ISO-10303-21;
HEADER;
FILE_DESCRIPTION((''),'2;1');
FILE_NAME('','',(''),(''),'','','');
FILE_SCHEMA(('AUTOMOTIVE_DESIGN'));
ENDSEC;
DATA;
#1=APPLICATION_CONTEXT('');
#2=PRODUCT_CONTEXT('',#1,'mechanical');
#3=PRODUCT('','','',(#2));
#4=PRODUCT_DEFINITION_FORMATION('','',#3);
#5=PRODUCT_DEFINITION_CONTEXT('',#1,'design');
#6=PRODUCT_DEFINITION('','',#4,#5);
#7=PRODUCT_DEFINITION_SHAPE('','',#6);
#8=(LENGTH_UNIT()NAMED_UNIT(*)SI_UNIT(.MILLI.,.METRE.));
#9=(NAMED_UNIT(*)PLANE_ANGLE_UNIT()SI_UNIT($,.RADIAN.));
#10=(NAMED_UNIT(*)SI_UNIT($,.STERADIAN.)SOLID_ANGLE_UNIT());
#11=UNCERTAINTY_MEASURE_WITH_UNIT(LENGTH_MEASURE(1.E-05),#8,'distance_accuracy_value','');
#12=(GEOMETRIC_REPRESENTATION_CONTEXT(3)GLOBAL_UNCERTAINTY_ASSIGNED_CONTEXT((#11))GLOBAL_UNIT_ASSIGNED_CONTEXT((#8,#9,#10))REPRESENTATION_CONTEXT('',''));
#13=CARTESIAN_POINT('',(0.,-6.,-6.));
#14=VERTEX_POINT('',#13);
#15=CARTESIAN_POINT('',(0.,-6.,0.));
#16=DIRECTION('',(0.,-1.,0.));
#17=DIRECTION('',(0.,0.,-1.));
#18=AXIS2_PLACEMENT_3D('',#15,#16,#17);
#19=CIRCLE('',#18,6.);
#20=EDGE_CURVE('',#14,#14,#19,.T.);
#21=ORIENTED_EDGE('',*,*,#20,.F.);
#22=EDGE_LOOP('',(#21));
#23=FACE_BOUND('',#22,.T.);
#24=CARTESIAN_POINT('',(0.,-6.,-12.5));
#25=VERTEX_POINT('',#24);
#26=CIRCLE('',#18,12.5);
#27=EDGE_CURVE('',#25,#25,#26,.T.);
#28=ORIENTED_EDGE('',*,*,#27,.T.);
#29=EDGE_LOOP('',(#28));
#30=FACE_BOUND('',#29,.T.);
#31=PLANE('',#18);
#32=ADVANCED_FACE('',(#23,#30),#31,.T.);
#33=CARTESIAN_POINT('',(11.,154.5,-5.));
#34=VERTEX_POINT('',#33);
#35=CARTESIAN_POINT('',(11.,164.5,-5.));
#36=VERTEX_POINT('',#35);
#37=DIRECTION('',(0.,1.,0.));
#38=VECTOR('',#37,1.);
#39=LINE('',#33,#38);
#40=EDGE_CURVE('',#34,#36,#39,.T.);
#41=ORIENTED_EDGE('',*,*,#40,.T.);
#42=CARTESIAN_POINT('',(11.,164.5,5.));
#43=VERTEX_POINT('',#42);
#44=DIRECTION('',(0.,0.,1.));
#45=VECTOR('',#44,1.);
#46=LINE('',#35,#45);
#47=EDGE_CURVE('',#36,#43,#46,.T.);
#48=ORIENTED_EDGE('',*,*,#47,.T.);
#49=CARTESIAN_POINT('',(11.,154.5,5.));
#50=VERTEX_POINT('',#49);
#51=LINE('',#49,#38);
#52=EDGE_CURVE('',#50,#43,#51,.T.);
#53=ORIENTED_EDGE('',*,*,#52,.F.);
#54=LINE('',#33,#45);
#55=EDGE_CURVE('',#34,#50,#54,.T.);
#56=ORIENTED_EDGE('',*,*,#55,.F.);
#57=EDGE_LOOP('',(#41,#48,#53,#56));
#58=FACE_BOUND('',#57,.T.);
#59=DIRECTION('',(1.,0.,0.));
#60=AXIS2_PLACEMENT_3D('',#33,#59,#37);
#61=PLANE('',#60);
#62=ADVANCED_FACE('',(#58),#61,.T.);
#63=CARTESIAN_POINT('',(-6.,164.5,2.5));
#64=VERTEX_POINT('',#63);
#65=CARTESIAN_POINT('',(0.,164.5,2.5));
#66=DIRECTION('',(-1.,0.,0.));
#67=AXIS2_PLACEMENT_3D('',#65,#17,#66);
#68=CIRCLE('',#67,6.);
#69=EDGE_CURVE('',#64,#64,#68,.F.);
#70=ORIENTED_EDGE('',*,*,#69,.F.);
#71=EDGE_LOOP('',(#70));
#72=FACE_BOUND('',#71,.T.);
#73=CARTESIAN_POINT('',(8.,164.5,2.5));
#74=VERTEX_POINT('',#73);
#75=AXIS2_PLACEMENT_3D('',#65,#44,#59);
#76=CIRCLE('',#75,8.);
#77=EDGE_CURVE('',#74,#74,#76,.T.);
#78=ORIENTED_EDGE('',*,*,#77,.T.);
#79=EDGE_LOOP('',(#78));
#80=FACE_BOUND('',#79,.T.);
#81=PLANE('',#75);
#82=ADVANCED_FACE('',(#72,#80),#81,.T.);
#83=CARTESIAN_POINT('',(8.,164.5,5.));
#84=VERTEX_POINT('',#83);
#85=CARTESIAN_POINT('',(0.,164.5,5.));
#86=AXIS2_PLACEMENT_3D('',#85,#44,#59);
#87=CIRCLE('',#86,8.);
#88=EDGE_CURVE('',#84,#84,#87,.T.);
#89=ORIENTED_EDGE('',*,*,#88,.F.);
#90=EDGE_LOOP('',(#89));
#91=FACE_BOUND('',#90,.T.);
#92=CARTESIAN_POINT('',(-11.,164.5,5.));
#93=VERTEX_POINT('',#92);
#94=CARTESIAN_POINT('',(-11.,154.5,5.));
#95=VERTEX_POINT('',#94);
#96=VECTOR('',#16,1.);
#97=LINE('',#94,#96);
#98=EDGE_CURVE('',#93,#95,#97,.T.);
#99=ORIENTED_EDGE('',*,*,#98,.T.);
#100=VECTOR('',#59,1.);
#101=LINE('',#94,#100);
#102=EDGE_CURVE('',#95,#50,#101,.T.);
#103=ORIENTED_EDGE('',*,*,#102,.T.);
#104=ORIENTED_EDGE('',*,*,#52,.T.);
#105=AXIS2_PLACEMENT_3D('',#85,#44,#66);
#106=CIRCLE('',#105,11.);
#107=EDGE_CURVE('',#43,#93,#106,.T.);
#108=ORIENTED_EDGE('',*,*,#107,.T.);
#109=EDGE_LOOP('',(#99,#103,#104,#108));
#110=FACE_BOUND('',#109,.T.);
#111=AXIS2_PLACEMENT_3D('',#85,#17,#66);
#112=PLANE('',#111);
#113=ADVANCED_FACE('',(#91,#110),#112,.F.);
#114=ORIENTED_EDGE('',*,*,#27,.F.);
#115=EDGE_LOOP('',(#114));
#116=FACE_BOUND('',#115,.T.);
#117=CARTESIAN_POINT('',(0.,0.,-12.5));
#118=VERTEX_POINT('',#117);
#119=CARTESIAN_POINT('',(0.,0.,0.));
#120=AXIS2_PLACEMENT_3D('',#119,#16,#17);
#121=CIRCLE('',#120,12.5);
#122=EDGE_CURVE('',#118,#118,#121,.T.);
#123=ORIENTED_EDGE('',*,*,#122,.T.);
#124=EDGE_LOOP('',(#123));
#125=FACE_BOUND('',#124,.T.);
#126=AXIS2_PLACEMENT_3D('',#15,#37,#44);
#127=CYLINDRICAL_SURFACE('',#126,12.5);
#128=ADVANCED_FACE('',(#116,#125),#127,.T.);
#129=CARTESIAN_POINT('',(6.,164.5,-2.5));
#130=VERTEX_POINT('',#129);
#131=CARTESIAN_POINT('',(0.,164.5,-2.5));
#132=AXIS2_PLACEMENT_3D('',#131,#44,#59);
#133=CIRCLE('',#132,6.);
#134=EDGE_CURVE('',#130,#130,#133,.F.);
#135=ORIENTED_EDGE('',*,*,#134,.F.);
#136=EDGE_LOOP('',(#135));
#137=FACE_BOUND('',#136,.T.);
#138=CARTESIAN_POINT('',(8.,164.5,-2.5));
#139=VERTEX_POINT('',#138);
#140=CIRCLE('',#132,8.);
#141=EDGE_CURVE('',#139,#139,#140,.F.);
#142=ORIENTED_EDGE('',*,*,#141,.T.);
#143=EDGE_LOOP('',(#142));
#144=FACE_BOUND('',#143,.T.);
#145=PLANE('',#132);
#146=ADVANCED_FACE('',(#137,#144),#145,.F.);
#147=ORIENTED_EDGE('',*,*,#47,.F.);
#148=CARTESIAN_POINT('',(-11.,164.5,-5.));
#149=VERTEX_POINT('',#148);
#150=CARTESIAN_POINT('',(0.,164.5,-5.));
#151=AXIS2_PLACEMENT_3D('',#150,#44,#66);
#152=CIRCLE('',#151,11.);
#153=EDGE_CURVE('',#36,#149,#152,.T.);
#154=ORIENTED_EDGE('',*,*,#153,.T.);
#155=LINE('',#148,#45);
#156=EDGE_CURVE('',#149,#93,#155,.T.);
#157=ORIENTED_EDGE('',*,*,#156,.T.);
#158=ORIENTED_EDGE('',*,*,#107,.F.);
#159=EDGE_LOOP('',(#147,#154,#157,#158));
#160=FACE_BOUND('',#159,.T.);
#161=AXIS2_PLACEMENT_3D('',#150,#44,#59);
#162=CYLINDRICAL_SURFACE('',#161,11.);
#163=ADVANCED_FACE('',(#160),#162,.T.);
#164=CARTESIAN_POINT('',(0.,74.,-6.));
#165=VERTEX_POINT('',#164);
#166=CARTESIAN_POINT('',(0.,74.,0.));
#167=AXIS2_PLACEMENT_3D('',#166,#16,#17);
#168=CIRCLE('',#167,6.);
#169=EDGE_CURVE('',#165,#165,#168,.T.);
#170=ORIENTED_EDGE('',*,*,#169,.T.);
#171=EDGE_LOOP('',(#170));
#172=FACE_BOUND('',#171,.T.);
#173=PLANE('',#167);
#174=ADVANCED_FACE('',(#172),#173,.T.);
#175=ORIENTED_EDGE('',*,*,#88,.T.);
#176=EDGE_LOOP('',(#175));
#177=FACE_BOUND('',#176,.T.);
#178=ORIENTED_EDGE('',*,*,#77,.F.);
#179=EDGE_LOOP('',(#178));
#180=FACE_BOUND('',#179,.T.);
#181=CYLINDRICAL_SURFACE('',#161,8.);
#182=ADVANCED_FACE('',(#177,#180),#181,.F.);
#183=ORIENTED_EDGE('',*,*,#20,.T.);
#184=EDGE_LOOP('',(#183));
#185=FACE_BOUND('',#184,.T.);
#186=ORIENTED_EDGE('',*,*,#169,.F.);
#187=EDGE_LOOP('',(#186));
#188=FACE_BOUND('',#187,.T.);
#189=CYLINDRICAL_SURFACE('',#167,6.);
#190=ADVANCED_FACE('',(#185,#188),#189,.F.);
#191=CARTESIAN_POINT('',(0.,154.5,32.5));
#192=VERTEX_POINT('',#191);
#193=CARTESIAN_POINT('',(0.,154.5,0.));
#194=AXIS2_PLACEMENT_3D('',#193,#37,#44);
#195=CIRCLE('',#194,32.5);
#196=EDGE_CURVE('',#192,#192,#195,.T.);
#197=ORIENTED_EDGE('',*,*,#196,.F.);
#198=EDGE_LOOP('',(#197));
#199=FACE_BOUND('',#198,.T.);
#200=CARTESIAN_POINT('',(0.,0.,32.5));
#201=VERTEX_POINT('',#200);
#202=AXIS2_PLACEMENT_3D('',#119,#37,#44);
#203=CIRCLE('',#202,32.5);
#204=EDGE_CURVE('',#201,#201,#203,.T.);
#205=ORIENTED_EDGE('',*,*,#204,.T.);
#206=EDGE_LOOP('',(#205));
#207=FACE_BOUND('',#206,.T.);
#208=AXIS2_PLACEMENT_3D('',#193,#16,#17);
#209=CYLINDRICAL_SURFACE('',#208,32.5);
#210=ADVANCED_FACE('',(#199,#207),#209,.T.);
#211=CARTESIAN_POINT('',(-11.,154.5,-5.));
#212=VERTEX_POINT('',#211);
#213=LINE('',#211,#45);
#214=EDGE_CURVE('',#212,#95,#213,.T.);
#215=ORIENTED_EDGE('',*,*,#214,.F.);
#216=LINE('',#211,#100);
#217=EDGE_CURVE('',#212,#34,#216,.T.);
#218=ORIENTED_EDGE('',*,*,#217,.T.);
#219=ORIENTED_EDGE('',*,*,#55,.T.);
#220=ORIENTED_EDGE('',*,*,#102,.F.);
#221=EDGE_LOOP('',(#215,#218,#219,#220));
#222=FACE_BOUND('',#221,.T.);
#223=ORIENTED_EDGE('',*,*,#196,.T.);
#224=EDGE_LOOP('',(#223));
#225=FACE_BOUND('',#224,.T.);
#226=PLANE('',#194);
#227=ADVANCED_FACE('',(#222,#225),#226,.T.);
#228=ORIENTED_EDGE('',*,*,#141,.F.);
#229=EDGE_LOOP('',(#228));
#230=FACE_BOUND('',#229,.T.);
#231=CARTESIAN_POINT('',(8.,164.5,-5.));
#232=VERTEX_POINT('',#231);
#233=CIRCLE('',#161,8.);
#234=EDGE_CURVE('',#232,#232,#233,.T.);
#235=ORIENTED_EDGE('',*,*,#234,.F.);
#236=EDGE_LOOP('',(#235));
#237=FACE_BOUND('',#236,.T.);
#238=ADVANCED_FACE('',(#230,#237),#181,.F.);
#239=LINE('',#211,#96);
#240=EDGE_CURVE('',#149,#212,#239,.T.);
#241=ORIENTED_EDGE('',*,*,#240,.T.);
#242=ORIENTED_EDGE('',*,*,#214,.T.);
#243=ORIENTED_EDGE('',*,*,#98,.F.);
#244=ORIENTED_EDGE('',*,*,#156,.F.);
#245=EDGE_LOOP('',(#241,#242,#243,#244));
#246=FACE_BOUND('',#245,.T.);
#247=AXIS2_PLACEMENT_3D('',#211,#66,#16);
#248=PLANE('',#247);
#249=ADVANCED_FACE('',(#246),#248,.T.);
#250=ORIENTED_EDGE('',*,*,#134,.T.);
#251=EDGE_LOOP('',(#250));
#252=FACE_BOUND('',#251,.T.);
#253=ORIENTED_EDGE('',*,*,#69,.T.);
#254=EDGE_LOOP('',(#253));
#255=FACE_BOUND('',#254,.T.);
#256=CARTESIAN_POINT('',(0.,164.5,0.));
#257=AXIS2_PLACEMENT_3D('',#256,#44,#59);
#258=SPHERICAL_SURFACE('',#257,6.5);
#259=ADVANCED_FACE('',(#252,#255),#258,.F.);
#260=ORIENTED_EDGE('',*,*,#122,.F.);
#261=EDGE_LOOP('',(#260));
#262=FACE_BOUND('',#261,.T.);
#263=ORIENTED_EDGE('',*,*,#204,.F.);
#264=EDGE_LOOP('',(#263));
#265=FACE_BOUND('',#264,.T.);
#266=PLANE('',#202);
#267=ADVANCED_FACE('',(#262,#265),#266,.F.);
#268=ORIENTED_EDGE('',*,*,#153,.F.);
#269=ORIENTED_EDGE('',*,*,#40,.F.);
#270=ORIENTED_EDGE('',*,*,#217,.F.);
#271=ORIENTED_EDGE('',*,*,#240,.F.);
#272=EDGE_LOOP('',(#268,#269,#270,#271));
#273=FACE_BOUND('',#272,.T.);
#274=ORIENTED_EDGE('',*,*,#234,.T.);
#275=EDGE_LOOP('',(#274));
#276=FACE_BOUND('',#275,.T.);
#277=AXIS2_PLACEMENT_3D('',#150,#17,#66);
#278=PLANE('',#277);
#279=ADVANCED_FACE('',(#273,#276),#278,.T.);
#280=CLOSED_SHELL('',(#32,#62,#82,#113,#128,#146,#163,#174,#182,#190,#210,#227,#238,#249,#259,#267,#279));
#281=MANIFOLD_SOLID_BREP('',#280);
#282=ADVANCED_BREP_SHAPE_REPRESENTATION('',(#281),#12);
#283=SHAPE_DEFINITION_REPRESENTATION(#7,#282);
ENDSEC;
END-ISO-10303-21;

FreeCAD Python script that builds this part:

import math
import FreeCAD as App
import Part
import Sketcher

doc = App.newDocument("Part")
body = doc.addObject("PartDesign::Body", "Body")

# Sketch on XZ plane
sketch1 = body.newObject("Sketcher::SketchObject", "Sketch")
sketch1.AttachmentSupport = (doc.getObject("XZ_Plane"), [""])
sketch1.MapMode = "FlatFace"
sketch1.addGeometry(Part.Circle(App.Vector(0, 0, 0), App.Vector(0, 0, 1), 32.5), False)
sketch1.addConstraint(Sketcher.Constraint("Coincident", 0, 3, -1, 1))
sketch1.addConstraint(Sketcher.Constraint("Diameter", 0, 65.0))
pad1 = body.newObject("PartDesign::Pad", "Pad")
pad1.Profile = sketch1
pad1.Length = 154.5
pad1.Reversed = True

# Sketch on XZ plane
sketch2 = body.newObject("Sketcher::SketchObject", "Sketch001")
sketch2.AttachmentSupport = (doc.getObject("XZ_Plane"), [""])
sketch2.MapMode = "FlatFace"
sketch2.addGeometry(Part.Circle(App.Vector(0, 0, 0), App.Vector(0, 0, 1), 12.5), False)
sketch2.addConstraint(Sketcher.Constraint("Coincident", 0, 3, -1, 1))
sketch2.addConstraint(Sketcher.Constraint("Diameter", 0, 25.0))
pad2 = body.newObject("PartDesign::Pad", "Pad001")
pad2.Profile = sketch2
pad2.Length = 6

# Sketch on XZ plane
sketch3 = body.newObject("Sketcher::SketchObject", "Sketch002")
sketch3.AttachmentSupport = (doc.getObject("XZ_Plane"), [""])
sketch3.MapMode = "FlatFace"
sketch3.AttachmentOffset = App.Placement(App.Vector(0, 0, 6), App.Rotation())
sketch3.addGeometry(Part.Circle(App.Vector(0, 0, 0), App.Vector(0, 0, 1), 6), False)
sketch3.addConstraint(Sketcher.Constraint("Coincident", 0, 3, -1, 1))
sketch3.addConstraint(Sketcher.Constraint("Diameter", 0, 12.0))
pocket1 = body.newObject("PartDesign::Pocket", "Pocket")
pocket1.Profile = sketch3
pocket1.Length = 80

# Sketch on XY plane
sketch4 = body.newObject("Sketcher::SketchObject", "Sketch003")
sketch4.AttachmentSupport = (doc.getObject("XY_Plane"), [""])
sketch4.MapMode = "FlatFace"
sketch4.addGeometry(Part.LineSegment(App.Vector(-11, 154.5, 0), App.Vector(11, 154.5, 0)), False)
sketch4.addGeometry(Part.LineSegment(App.Vector(11, 154.5, 0), App.Vector(11, 164.5, 0)), False)
sketch4.addGeometry(Part.ArcOfCircle(Part.Circle(App.Vector(0, 164.5, 0), App.Vector(0, 0, 1), 11), math.radians(0), math.radians(180)), False)
sketch4.addGeometry(Part.LineSegment(App.Vector(-11, 164.5, 0), App.Vector(-11, 154.5, 0)), False)
sketch4.addGeometry(Part.Circle(App.Vector(0, 164.5, 0), App.Vector(0, 0, 1), 8), False)
sketch4.addConstraint(Sketcher.Constraint("Coincident", 0, 2, 1, 1))
sketch4.addConstraint(Sketcher.Constraint("Tangent", 1, 2, 2, 1))
sketch4.addConstraint(Sketcher.Constraint("Tangent", 2, 2, 3, 1))
sketch4.addConstraint(Sketcher.Constraint("Coincident", 3, 2, 0, 1))
sketch4.addConstraint(Sketcher.Constraint("Horizontal", 0))
sketch4.addConstraint(Sketcher.Constraint("Vertical", 1))
sketch4.addConstraint(Sketcher.Constraint("Vertical", 3))
sketch4.addConstraint(Sketcher.Constraint("Coincident", 4, 3, 2, 3))
sketch4.addConstraint(Sketcher.Constraint("PointOnObject", 2, 3, -2))
sketch4.addConstraint(Sketcher.Constraint("Diameter", 4, 16.0))
sketch4.addConstraint(Sketcher.Constraint("Radius", 2, 11.0))
sketch4.addConstraint(Sketcher.Constraint("DistanceY", 1, 1, 1, 2, 10.0))
sketch4.addConstraint(Sketcher.Constraint("DistanceY", -1, 1, 2, 3, 164.5))
pad3 = body.newObject("PartDesign::Pad", "Pad002")
pad3.Profile = sketch4
pad3.Length = 10
pad3.Midplane = True

# Sketch on XY plane
sketch5 = body.newObject("Sketcher::SketchObject", "Sketch004")
sketch5.AttachmentSupport = (doc.getObject("XY_Plane"), [""])
sketch5.MapMode = "FlatFace"
sketch5.addGeometry(Part.Circle(App.Vector(0, 164.5, 0), App.Vector(0, 0, 1), 8), False)
sketch5.addConstraint(Sketcher.Constraint("PointOnObject", 0, 3, -2))
sketch5.addConstraint(Sketcher.Constraint("Diameter", 0, 16.0))
sketch5.addConstraint(Sketcher.Constraint("DistanceY", -1, 1, 0, 3, 164.5))
pad4 = body.newObject("PartDesign::Pad", "Pad003")
pad4.Profile = sketch5
pad4.Length = 5
pad4.Midplane = True

# Sketch on XY plane
sketch6 = body.newObject("Sketcher::SketchObject", "Sketch005")
sketch6.AttachmentSupport = (doc.getObject("XY_Plane"), [""])
sketch6.MapMode = "FlatFace"
sketch6.AttachmentOffset = App.Placement(App.Vector(0, 0, 4.5), App.Rotation())
sketch6.addGeometry(Part.Circle(App.Vector(0, 164.5, 0), App.Vector(0, 0, 1), 4), False)
sketch6.addConstraint(Sketcher.Constraint("PointOnObject", 0, 3, -2))
sketch6.addConstraint(Sketcher.Constraint("Diameter", 0, 8.0))
sketch6.addConstraint(Sketcher.Constraint("DistanceY", -1, 1, 0, 3, 164.5))

# Sketch on XY plane
sketch7 = body.newObject("Sketcher::SketchObject", "Sketch006")
sketch7.AttachmentSupport = (doc.getObject("XY_Plane"), [""])
sketch7.MapMode = "FlatFace"
sketch7.AttachmentOffset = App.Placement(App.Vector(0, 0, 2.5), App.Rotation())
sketch7.addGeometry(Part.Circle(App.Vector(0, 164.5, 0), App.Vector(0, 0, 1), 6), False)
sketch7.addConstraint(Sketcher.Constraint("PointOnObject", 0, 3, -2))
sketch7.addConstraint(Sketcher.Constraint("Diameter", 0, 12.0))
sketch7.addConstraint(Sketcher.Constraint("DistanceY", -1, 1, 0, 3, 164.5))

additiveloft = body.newObject("PartDesign::AdditiveLoft", "AdditiveLoft")
additiveloft.Profile = sketch6
additiveloft.Sections = [sketch7]
doc.recompute()

mirrored = body.newObject("PartDesign::Mirrored", "Mirrored")
mirrored.Originals = [additiveloft]
mirrored.MirrorPlane = (doc.getObject("XY_Plane"), [""])
body.Tip = mirrored

# Sketch on XY plane
sketch8 = body.newObject("Sketcher::SketchObject", "Sketch007")
sketch8.AttachmentSupport = (doc.getObject("XY_Plane"), [""])
sketch8.MapMode = "FlatFace"
sketch8.AttachmentOffset = App.Placement(App.Vector(0, 0, 4.5), App.Rotation())
sketch8.addGeometry(Part.Circle(App.Vector(0, 166.761336, 0), App.Vector(0, 0, 1), 2.5), False)
sketch8.addConstraint(Sketcher.Constraint("PointOnObject", 0, 3, -2))
sketch8.addConstraint(Sketcher.Constraint("Diameter", 0, 5.0))
sketch8.addConstraint(Sketcher.Constraint("DistanceY", -1, 1, 0, 3, 166.761336))
pocket2 = body.newObject("PartDesign::Pocket", "Pocket001")
pocket2.Profile = sketch8
pocket2.Length = 31

# Sketch on XY plane
sketch9 = body.newObject("Sketcher::SketchObject", "Sketch008")
sketch9.AttachmentSupport = (doc.getObject("XY_Plane"), [""])
sketch9.MapMode = "FlatFace"
sketch9.AttachmentOffset = App.Placement(App.Vector(0, 0, 4.5), App.Rotation())
sketch9.addGeometry(Part.Circle(App.Vector(0, 164.5, 0), App.Vector(0, 0, 1), 6), False)
sketch9.addConstraint(Sketcher.Constraint("PointOnObject", 0, 3, -2))
sketch9.addConstraint(Sketcher.Constraint("Diameter", 0, 12.0))
sketch9.addConstraint(Sketcher.Constraint("DistanceY", -1, 1, 0, 3, 164.5))
pocket3 = body.newObject("PartDesign::Pocket", "Pocket002")
pocket3.Profile = sketch9
pocket3.Length = 17

# Sketch on XY plane
sketch10 = body.newObject("Sketcher::SketchObject", "Sketch009")
sketch10.AttachmentSupport = (doc.getObject("XY_Plane"), [""])
sketch10.MapMode = "FlatFace"
sketch10.addGeometry(Part.LineSegment(App.Vector(0, 171, 0), App.Vector(0, 158, 0)), False)
sketch10.addGeometry(Part.ArcOfCircle(Part.Circle(App.Vector(0, 164.5, 0), App.Vector(0, 0, 1), 6.5), math.radians(-90), math.radians(90)), False)
sketch10.addConstraint(Sketcher.Constraint("Coincident", 0, 1, 1, 2))
sketch10.addConstraint(Sketcher.Constraint("Coincident", 1, 1, 0, 2))
sketch10.addConstraint(Sketcher.Constraint("Vertical", 0))
sketch10.addConstraint(Sketcher.Constraint("PointOnObject", 1, 3, -2))
sketch10.addConstraint(Sketcher.Constraint("PointOnObject", 0, 1, -2))
sketch10.addConstraint(Sketcher.Constraint("Radius", 1, 6.5))
sketch10.addConstraint(Sketcher.Constraint("DistanceY", -1, 1, 0, 1, 171.0))
groove = body.newObject("PartDesign::Groove", "Groove")
groove.Profile = sketch10
groove.ReferenceAxis = (sketch10, ["V_Axis"])
groove.Angle = 360

doc.recompute()
